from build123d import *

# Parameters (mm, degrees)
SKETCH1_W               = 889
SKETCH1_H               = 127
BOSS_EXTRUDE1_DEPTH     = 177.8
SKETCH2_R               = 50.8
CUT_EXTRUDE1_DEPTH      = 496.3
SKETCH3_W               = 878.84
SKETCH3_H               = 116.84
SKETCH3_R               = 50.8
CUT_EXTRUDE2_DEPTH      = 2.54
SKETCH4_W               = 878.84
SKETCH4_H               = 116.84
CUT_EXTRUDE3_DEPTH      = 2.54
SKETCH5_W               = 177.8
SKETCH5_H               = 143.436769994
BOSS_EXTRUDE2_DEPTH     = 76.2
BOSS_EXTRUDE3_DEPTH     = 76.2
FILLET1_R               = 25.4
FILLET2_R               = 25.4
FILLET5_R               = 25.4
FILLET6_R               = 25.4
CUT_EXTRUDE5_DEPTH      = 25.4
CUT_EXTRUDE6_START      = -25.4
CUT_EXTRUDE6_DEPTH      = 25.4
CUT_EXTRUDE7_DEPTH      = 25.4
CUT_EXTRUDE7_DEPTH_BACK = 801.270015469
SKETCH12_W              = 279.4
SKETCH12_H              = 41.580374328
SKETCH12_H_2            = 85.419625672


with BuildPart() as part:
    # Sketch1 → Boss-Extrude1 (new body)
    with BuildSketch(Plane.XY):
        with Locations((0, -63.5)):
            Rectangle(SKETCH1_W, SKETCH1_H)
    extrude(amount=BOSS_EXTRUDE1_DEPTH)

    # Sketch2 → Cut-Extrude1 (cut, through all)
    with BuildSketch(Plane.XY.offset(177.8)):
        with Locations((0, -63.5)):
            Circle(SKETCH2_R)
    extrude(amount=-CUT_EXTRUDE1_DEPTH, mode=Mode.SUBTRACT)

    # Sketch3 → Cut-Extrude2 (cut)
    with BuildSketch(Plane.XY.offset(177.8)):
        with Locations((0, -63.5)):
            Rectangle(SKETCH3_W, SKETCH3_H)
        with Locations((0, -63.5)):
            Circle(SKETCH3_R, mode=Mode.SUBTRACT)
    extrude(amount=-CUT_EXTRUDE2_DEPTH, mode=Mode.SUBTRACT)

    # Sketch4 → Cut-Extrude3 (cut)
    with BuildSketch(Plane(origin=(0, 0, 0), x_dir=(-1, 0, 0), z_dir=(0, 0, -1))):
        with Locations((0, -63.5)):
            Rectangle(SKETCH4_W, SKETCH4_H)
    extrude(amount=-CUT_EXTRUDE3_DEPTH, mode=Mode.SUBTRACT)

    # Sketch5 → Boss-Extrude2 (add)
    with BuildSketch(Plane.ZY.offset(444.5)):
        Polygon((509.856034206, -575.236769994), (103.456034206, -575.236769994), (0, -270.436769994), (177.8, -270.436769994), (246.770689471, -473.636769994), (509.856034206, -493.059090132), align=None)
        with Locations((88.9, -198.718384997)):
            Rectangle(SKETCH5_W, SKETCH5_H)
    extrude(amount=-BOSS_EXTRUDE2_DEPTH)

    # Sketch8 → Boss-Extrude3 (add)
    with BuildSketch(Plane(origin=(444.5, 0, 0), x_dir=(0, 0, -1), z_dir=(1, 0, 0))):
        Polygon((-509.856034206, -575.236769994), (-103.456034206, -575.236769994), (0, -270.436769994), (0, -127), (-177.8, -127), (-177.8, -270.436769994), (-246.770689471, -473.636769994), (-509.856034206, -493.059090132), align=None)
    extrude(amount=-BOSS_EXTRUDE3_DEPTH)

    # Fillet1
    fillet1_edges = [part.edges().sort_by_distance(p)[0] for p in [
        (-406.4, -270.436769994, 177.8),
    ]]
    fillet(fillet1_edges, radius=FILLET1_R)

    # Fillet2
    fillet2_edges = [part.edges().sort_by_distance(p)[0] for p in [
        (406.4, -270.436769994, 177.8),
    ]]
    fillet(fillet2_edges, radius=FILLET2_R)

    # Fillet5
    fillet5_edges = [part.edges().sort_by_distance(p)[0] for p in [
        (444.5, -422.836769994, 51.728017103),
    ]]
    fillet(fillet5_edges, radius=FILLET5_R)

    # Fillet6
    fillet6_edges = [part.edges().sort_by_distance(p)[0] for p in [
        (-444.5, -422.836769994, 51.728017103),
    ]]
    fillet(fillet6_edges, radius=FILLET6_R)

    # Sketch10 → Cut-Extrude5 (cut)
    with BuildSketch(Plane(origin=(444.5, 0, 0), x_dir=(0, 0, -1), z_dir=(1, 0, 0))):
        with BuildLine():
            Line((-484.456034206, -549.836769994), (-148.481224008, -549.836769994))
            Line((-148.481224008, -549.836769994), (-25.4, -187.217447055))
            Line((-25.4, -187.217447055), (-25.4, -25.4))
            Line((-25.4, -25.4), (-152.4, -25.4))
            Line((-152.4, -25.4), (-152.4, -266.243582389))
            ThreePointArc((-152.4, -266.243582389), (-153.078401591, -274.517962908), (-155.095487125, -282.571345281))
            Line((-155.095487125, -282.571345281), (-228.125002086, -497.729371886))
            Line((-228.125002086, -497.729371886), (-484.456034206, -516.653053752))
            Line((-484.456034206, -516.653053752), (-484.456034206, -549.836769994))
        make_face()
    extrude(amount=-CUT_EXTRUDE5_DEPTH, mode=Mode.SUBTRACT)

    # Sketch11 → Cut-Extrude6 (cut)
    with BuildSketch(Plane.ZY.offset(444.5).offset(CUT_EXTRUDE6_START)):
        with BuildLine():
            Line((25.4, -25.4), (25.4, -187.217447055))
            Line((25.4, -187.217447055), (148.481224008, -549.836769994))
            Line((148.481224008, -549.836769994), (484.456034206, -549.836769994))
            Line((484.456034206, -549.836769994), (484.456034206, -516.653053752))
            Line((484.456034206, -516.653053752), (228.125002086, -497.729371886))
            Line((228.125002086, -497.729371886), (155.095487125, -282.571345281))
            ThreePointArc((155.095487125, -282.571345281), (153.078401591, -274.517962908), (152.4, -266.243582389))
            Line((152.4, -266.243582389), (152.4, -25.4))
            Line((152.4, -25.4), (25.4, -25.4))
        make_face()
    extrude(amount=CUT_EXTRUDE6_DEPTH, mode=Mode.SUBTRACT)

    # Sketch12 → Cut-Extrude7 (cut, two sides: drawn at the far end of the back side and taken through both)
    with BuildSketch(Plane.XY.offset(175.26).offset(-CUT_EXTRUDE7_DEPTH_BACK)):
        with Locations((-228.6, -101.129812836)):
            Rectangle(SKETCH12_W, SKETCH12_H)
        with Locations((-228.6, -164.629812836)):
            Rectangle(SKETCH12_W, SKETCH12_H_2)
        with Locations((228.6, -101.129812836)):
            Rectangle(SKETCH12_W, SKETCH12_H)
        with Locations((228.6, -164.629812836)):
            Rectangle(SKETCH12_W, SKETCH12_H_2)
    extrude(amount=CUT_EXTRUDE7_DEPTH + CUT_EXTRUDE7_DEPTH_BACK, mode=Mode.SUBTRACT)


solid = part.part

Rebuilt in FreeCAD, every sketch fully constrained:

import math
import FreeCAD as App
import Part
import Sketcher
Q = App.Units.Quantity


def edges_at(feature, points):
    """Names of the edges that pass closest to the given points."""
    edges = feature.Shape.Edges
    near = lambda p: min(range(len(edges)), key=lambda i: edges[i].distToShape(Part.Vertex(*p))[0])
    return sorted({f"Edge{near(p) + 1}" for p in points})


def add_polygon(sketch, points):
    """Adds a closed chain of lines whose ends are joined by coincident constraints."""
    first, n = sketch.GeometryCount, len(points)
    for a, b in zip(points, points[1:] + points[:1]):
        sketch.addGeometry(Part.LineSegment(App.Vector(*a, 0), App.Vector(*b, 0)), False)
    for i in range(n):
        sketch.addConstraint(Sketcher.Constraint("Coincident", first + i, 2, first + (i + 1) % n, 1))

doc = App.newDocument("Part")
params = doc.addObject("Spreadsheet::Sheet", "Params")
for row, (alias, value) in enumerate([
    ("sketch1_width", "35 in"),
    ("sketch1_height", "5 in"),
    ("pad1_length", "7 in"),
    ("sketch2_diameter", "4 in"),
    ("sketch3_diameter", "4 in"),
    ("sketch3_width", "34.6 in"),
    ("sketch3_height", "4.6 in"),
    ("pocket2_length", "0.1 in"),
    ("sketch4_width", "34.6 in"),
    ("sketch4_height", "4.6 in"),
    ("pocket3_length", "0.1 in"),
    ("sketch5_height", "16 in"),
    ("sketch5_height2", "7 in"),
    ("pad2_length", "3 in"),
    ("sketch6_height", "16 in"),
    ("sketch6_height2", "7 in"),
    ("pad3_length", "3 in"),
    ("fillet_radius", "1 in"),
    ("fillet2_radius", "1 in"),
    ("fillet3_radius", "1 in"),
    ("fillet4_radius", "1 in"),
    ("sketch7_radius", "2 in"),
    ("sketch7_height", "5 in"),
    ("pocket4_length", "1 in"),
    ("sketch8_radius", "2 in"),
    ("sketch8_height", "5 in"),
    ("pocket5_length", "1 in"),
    ("sketch9_width", "11 in"),
    ("sketch9_height", "5 in"),
], start=1):
    params.set(f"A{row}", alias)
    params.set(f"B{row}", "=" + value)
    params.setAlias(f"B{row}", alias)

body = doc.addObject("PartDesign::Body", "Body")

# Sketch on XY plane
sketch1 = body.newObject("Sketcher::SketchObject", "Sketch")
sketch1.AttachmentSupport = (doc.getObject("XY_Plane"), [""])
sketch1.MapMode = "FlatFace"
add_polygon(sketch1, [(-444.5, 0), (-444.5, -127), (444.5, -127), (444.5, 0)])  # lines 0-3
sketch1.addConstraint([
    Sketcher.Constraint("Vertical", 0),
    Sketcher.Constraint("Horizontal", 1),
    Sketcher.Constraint("Vertical", 2),
    Sketcher.Constraint("Horizontal", 3),
    Sketcher.Constraint("Symmetric", 2, 2, 3, 2, -1, 1),
    Sketcher.Constraint("DistanceX", 1, 1, 1, 2, Q("35 in")),
    Sketcher.Constraint("DistanceY", 0, 2, 0, 1, Q("5 in")),
])
sketch1.setExpression("Constraints[9]", "Params.sketch1_width")
sketch1.setExpression("Constraints[10]", "Params.sketch1_height")
pad1 = body.newObject("PartDesign::Pad", "Pad")
pad1.Profile = sketch1
pad1.setExpression("Length", "Params.pad1_length")

# Sketch on XY plane
sketch2 = body.newObject("Sketcher::SketchObject", "Sketch001")
sketch2.AttachmentSupport = (doc.getObject("XY_Plane"), [""])
sketch2.MapMode = "FlatFace"
sketch2.AttachmentOffset = App.Placement(App.Vector(0, 0, 7 * 25.4), App.Rotation())
sketch2.addGeometry(Part.Circle(App.Vector(0, -63.5, 0), App.Vector(0, 0, 1), 50.8), False)
sketch2.addConstraint([
    Sketcher.Constraint("PointOnObject", 0, 3, -2),
    Sketcher.Constraint("Diameter", 0, Q("4 in")),
    Sketcher.Constraint("DistanceY", 0, 3, -1, 1, Q("2.5 in")),
])
sketch2.setExpression("Constraints[1]", "Params.sketch2_diameter")
pocket1 = body.newObject("PartDesign::Pocket", "Pocket")
pocket1.Profile = sketch2
pocket1.Type = "ThroughAll"

# Sketch on XY plane
sketch3 = body.newObject("Sketcher::SketchObject", "Sketch002")
sketch3.AttachmentSupport = (doc.getObject("XY_Plane"), [""])
sketch3.MapMode = "FlatFace"
sketch3.AttachmentOffset = App.Placement(App.Vector(0, 0, 7 * 25.4), App.Rotation())
add_polygon(sketch3, [(-439.42, -5.08), (-439.42, -121.92), (439.42, -121.92), (439.42, -5.08)])  # lines 0-3
sketch3.addGeometry(Part.Circle(App.Vector(0, -63.5, 0), App.Vector(0, 0, 1), 50.8), False)  # 4
sketch3.addConstraint([
    Sketcher.Constraint("Vertical", 0),
    Sketcher.Constraint("Horizontal", 1),
    Sketcher.Constraint("Vertical", 2),
    Sketcher.Constraint("Horizontal", 3),
    Sketcher.Constraint("PointOnObject", 4, 3, -2),
    Sketcher.Constraint("Diameter", 4, Q("4 in")),
    Sketcher.Constraint("DistanceX", 1, 1, 1, 2, Q("34.6 in")),
    Sketcher.Constraint("DistanceY", 0, 2, 0, 1, Q("4.6 in")),
    Sketcher.Constraint("DistanceY", 4, 3, -1, 1, Q("2.5 in")),
    Sketcher.Constraint("DistanceX", 0, 2, -1, 1, Q("17.3 in")),
    Sketcher.Constraint("DistanceY", 0, 2, -1, 1, Q("4.8 in")),
])
sketch3.setExpression("Constraints[9]", "Params.sketch3_diameter")
sketch3.setExpression("Constraints[10]", "Params.sketch3_width")
sketch3.setExpression("Constraints[11]", "Params.sketch3_height")
pocket2 = body.newObject("PartDesign::Pocket", "Pocket001")
pocket2.Profile = sketch3
pocket2.setExpression("Length", "Params.pocket2_length")

# Sketch on XY plane
sketch4 = body.newObject("Sketcher::SketchObject", "Sketch003")
sketch4.AttachmentSupport = (doc.getObject("XY_Plane"), [""])
sketch4.MapMode = "FlatFace"
add_polygon(sketch4, [(439.42, -5.08), (439.42, -121.92), (-439.42, -121.92), (-439.42, -5.08)])  # lines 0-3
sketch4.addConstraint([
    Sketcher.Constraint("Vertical", 0),
    Sketcher.Constraint("Horizontal", 1),
    Sketcher.Constraint("Vertical", 2),
    Sketcher.Constraint("Horizontal", 3),
    Sketcher.Constraint("DistanceX", 1, 2, 1, 1, Q("34.6 in")),
    Sketcher.Constraint("DistanceY", 0, 2, 0, 1, Q("4.6 in")),
    Sketcher.Constraint("DistanceX", -1, 1, 0, 2, Q("17.3 in")),
    Sketcher.Constraint("DistanceY", 0, 2, -1, 1, Q("4.8 in")),
])
sketch4.setExpression("Constraints[8]", "Params.sketch4_width")
sketch4.setExpression("Constraints[9]", "Params.sketch4_height")
pocket3 = body.newObject("PartDesign::Pocket", "Pocket002")
pocket3.Profile = sketch4
pocket3.setExpression("Length", "Params.pocket3_length")
pocket3.Reversed = True

# Sketch on YZ plane
sketch5 = body.newObject("Sketcher::SketchObject", "Sketch004")
sketch5.AttachmentSupport = (doc.getObject("YZ_Plane"), [""])
sketch5.MapMode = "FlatFace"
sketch5.AttachmentOffset = App.Placement(App.Vector(0, 0, -17.5 * 25.4), App.Rotation())
add_polygon(sketch5, [(-575.23677, 103.456034), (-575.23677, 509.856034), (-493.05909, 509.856034), (-473.63677, 246.770689), (-270.43677, 177.8), (-127, 177.8), (-127, 0), (-270.43677, 0)])  # lines 0-7
sketch5.addConstraint([
    Sketcher.Constraint("Vertical", 0),
    Sketcher.Constraint("Horizontal", 1),
    Sketcher.Constraint("Horizontal", 4),
    Sketcher.Constraint("Vertical", 5),
    Sketcher.Constraint("Horizontal", 6),
    Sketcher.Constraint("PointOnObject", 5, 2, -1),
    Sketcher.Constraint("Parallel", 3, 7),
    Sketcher.Constraint("Vertical", 3, 2, 6, 2),
    Sketcher.Constraint("DistanceY", 0, 1, 0, 2, Q("16 in")),
    Sketcher.Constraint("DistanceY", 5, 2, 5, 1, Q("7 in")),
    Sketcher.Constraint("DistanceX", 4, 2, -1, 1, Q("5 in")),
    Sketcher.Constraint("DistanceX", 0, 2, 2, 2, Q("4 in")),
    Sketcher.Constraint("DistanceX", 2, 2, 3, 2, Q("8 in")),
    Sketcher.Constraint("Distance", 2, 263.801299),
    Sketcher.Constraint("DistanceX", 1, 1, 1, 2, 82.17768),
    Sketcher.Constraint("DistanceX", 4, 1, 4, 2, 143.43677),
])
sketch5.setExpression("Constraints[16]", "Params.sketch5_height")
sketch5.setExpression("Constraints[17]", "Params.sketch5_height2")
pad2 = body.newObject("PartDesign::Pad", "Pad001")
pad2.Profile = sketch5
pad2.setExpression("Length", "Params.pad2_length")

# Sketch on YZ plane
sketch6 = body.newObject("Sketcher::SketchObject", "Sketch005")
sketch6.AttachmentSupport = (doc.getObject("YZ_Plane"), [""])
sketch6.MapMode = "FlatFace"
sketch6.AttachmentOffset = App.Placement(App.Vector(0, 0, 17.5 * 25.4), App.Rotation())
add_polygon(sketch6, [(-575.23677, 509.856034), (-575.23677, 103.456034), (-270.43677, 0), (-127, 0), (-127, 177.8), (-270.43677, 177.8), (-473.63677, 246.770689), (-493.05909, 509.856034)])  # lines 0-7
sketch6.addConstraint([
    Sketcher.Constraint("Vertical", 0),
    Sketcher.Constraint("Horizontal", 2),
    Sketcher.Constraint("Vertical", 3),
    Sketcher.Constraint("Horizontal", 4),
    Sketcher.Constraint("Horizontal", 7),
    Sketcher.Constraint("PointOnObject", 1, 2, -1),
    Sketcher.Constraint("Parallel", 1, 5),
    Sketcher.Constraint("Vertical", 1, 2, 4, 2),
    Sketcher.Constraint("DistanceY", 0, 2, 0, 1, Q("16 in")),
    Sketcher.Constraint("DistanceY", 3, 1, 3, 2, Q("7 in")),
    Sketcher.Constraint("DistanceX", 2, 2, -1, 1, Q("5 in")),
    Sketcher.Constraint("DistanceX", 0, 2, 1, 2, Q("12 in")),
    Sketcher.Constraint("DistanceX", 0, 2, 5, 2, Q("4 in")),
    Sketcher.Constraint("Distance", 6, 263.801299),
    Sketcher.Constraint("DistanceX", 2, 1, 2, 2, 143.43677),
    Sketcher.Constraint("DistanceX", 7, 2, 7, 1, 82.17768),
])
sketch6.setExpression("Constraints[16]", "Params.sketch6_height")
sketch6.setExpression("Constraints[17]", "Params.sketch6_height2")
pad3 = body.newObject("PartDesign::Pad", "Pad002")
pad3.Profile = sketch6
pad3.setExpression("Length", "Params.pad3_length")
pad3.Reversed = True
doc.recompute()

fillet = body.newObject("PartDesign::Fillet", "Fillet")
fillet.Base = (pad3, edges_at(pad3, [(-406.4, -270.437, 177.8)]))
fillet.setExpression("Radius", "Params.fillet_radius")
doc.recompute()

fillet2 = body.newObject("PartDesign::Fillet", "Fillet001")
fillet2.Base = (fillet, edges_at(fillet, [(406.4, -270.437, 177.8)]))
fillet2.setExpression("Radius", "Params.fillet2_radius")
doc.recompute()

fillet3 = body.newObject("PartDesign::Fillet", "Fillet002")
fillet3.Base = (fillet2, edges_at(fillet2, [(444.5, -422.837, 51.728)]))
fillet3.setExpression("Radius", "Params.fillet3_radius")
doc.recompute()

fillet4 = body.newObject("PartDesign::Fillet", "Fillet003")
fillet4.Base = (fillet3, edges_at(fillet3, [(-444.5, -422.837, 51.728)]))
fillet4.setExpression("Radius", "Params.fillet4_radius")

# Sketch on YZ plane
sketch7 = body.newObject("Sketcher::SketchObject", "Sketch006")
sketch7.AttachmentSupport = (doc.getObject("YZ_Plane"), [""])
sketch7.MapMode = "FlatFace"
sketch7.AttachmentOffset = App.Placement(App.Vector(0, 0, 17.5 * 25.4), App.Rotation())
sketch7.addGeometry([
    Part.LineSegment(App.Vector(-549.83677, 484.456034, 0), App.Vector(-549.83677, 148.481224, 0)),  # 0
    Part.LineSegment(App.Vector(-549.83677, 148.481224, 0), App.Vector(-187.217447, 25.4, 0)),  # 1
    Part.LineSegment(App.Vector(-187.217447, 25.4, 0), App.Vector(-25.4, 25.4, 0)),  # 2
    Part.LineSegment(App.Vector(-25.4, 25.4, 0), App.Vector(-25.4, 152.4, 0)),  # 3
    Part.LineSegment(App.Vector(-25.4, 152.4, 0), App.Vector(-266.243582, 152.4, 0)),  # 4
    Part.ArcOfCircle(Part.Circle(App.Vector(-266.243582, 203.2, 0), App.Vector(0, 0, 1), 50.8), math.radians(-108.748378), math.radians(-90)),  # 5
    Part.LineSegment(App.Vector(-282.571345, 155.095487, 0), App.Vector(-497.729372, 228.125002, 0)),  # 6
    Part.LineSegment(App.Vector(-497.729372, 228.125002, 0), App.Vector(-516.653054, 484.456034, 0)),  # 7
    Part.LineSegment(App.Vector(-516.653054, 484.456034, 0), App.Vector(-549.83677, 484.456034, 0)),  # 8
], False)
sketch7.addConstraint([
    Sketcher.Constraint("Coincident", 0, 2, 1, 1),
    Sketcher.Constraint("Coincident", 1, 2, 2, 1),
    Sketcher.Constraint("Coincident", 2, 2, 3, 1),
    Sketcher.Constraint("Coincident", 3, 2, 4, 1),
    Sketcher.Constraint("Tangent", 4, 2, 5, 2),
    Sketcher.Constraint("Tangent", 5, 1, 6, 1),
    Sketcher.Constraint("Coincident", 6, 2, 7, 1),
    Sketcher.Constraint("Coincident", 7, 2, 8, 1),
    Sketcher.Constraint("Coincident", 8, 2, 0, 1),
    Sketcher.Constraint("Vertical", 0),
    Sketcher.Constraint("Horizontal", 2),
    Sketcher.Constraint("Vertical", 3),
    Sketcher.Constraint("Horizontal", 4),
    Sketcher.Constraint("Horizontal", 8),
    Sketcher.Constraint("Parallel", 1, 6),
    Sketcher.Constraint("Radius", 5, Q("2 in")),
    Sketcher.Constraint("DistanceY", 3, 1, 3, 2, Q("5 in")),
    Sketcher.Constraint("DistanceY", -1, 1, 5, 3, Q("8 in")),
    Sketcher.Constraint("DistanceX", 2, 2, -1, 1, Q("1 in")),
    Sketcher.Constraint("DistanceY", 0, 2, 0, 1, 335.97481),
    Sketcher.Constraint("DistanceX", 5, 1, 1, 2, 95.353898),
    Sketcher.Constraint("DistanceX", 0, 2, 6, 2, 52.107398),
    Sketcher.Constraint("DistanceX", 2, 1, 2, 2, 161.817447),
    Sketcher.Constraint("DistanceX", 4, 2, 4, 1, 240.843582),
    Sketcher.Constraint("DistanceX", 8, 2, 8, 1, 33.183716),
    Sketcher.Constraint("DistanceX", 0, 2, -1, 1, 549.83677),
])
sketch7.setExpression("Constraints[15]", "Params.sketch7_radius")
sketch7.setExpression("Constraints[16]", "Params.sketch7_height")
pocket4 = body.newObject("PartDesign::Pocket", "Pocket003")
pocket4.Profile = sketch7
pocket4.setExpression("Length", "Params.pocket4_length")

# Sketch on YZ plane
sketch8 = body.newObject("Sketcher::SketchObject", "Sketch007")
sketch8.AttachmentSupport = (doc.getObject("YZ_Plane"), [""])
sketch8.MapMode = "FlatFace"
sketch8.AttachmentOffset = App.Placement(App.Vector(0, 0, -16.5 * 25.4), App.Rotation())
sketch8.addGeometry([
    Part.LineSegment(App.Vector(-25.4, 25.4, 0), App.Vector(-187.217447, 25.4, 0)),  # 0
    Part.LineSegment(App.Vector(-187.217447, 25.4, 0), App.Vector(-549.83677, 148.481224, 0)),  # 1
    Part.LineSegment(App.Vector(-549.83677, 148.481224, 0), App.Vector(-549.83677, 484.456034, 0)),  # 2
    Part.LineSegment(App.Vector(-549.83677, 484.456034, 0), App.Vector(-516.653054, 484.456034, 0)),  # 3
    Part.LineSegment(App.Vector(-516.653054, 484.456034, 0), App.Vector(-497.729372, 228.125002, 0)),  # 4
    Part.LineSegment(App.Vector(-497.729372, 228.125002, 0), App.Vector(-282.571345, 155.095487, 0)),  # 5
    Part.ArcOfCircle(Part.Circle(App.Vector(-266.243582, 203.2, 0), App.Vector(0, 0, 1), 50.8), math.radians(-108.748378), math.radians(-90)),  # 6
    Part.LineSegment(App.Vector(-266.243582, 152.4, 0), App.Vector(-25.4, 152.4, 0)),  # 7
    Part.LineSegment(App.Vector(-25.4, 152.4, 0), App.Vector(-25.4, 25.4, 0)),  # 8
], False)
sketch8.addConstraint([
    Sketcher.Constraint("Coincident", 0, 2, 1, 1),
    Sketcher.Constraint("Coincident", 1, 2, 2, 1),
    Sketcher.Constraint("Coincident", 2, 2, 3, 1),
    Sketcher.Constraint("Coincident", 3, 2, 4, 1),
    Sketcher.Constraint("Coincident", 4, 2, 5, 1),
    Sketcher.Constraint("Tangent", 5, 2, 6, 1),
    Sketcher.Constraint("Tangent", 6, 2, 7, 1),
    Sketcher.Constraint("Coincident", 7, 2, 8, 1),
    Sketcher.Constraint("Coincident", 8, 2, 0, 1),
    Sketcher.Constraint("Horizontal", 0),
    Sketcher.Constraint("Vertical", 2),
    Sketcher.Constraint("Horizontal", 3),
    Sketcher.Constraint("Horizontal", 7),
    Sketcher.Constraint("Vertical", 8),
    Sketcher.Constraint("Parallel", 1, 5),
    Sketcher.Constraint("Radius", 6, Q("2 in")),
    Sketcher.Constraint("DistanceY", 8, 2, 8, 1, Q("5 in")),
    Sketcher.Constraint("DistanceY", -1, 1, 6, 3, Q("8 in")),
    Sketcher.Constraint("DistanceX", 7, 2, -1, 1, Q("1 in")),
    Sketcher.Constraint("DistanceY", 2, 1, 2, 2, 335.97481),
    Sketcher.Constraint("DistanceX", 1, 2, 4, 2, 52.107398),
    Sketcher.Constraint("DistanceX", 5, 2, 0, 2, 95.353898),
    Sketcher.Constraint("DistanceX", 0, 2, 0, 1, 161.817447),
    Sketcher.Constraint("DistanceX", 3, 1, 3, 2, 33.183716),
    Sketcher.Constraint("DistanceX", 7, 1, 7, 2, 240.843582),
    Sketcher.Constraint("DistanceX", 1, 2, -1, 1, 549.83677),
])
sketch8.setExpression("Constraints[15]", "Params.sketch8_radius")
sketch8.setExpression("Constraints[16]", "Params.sketch8_height")
pocket5 = body.newObject("PartDesign::Pocket", "Pocket004")
pocket5.Profile = sketch8
pocket5.setExpression("Length", "Params.pocket5_length")

# Sketch on XY plane
sketch9 = body.newObject("Sketcher::SketchObject", "Sketch008")
sketch9.AttachmentSupport = (doc.getObject("XY_Plane"), [""])
sketch9.MapMode = "FlatFace"
sketch9.AttachmentOffset = App.Placement(App.Vector(0, 0, 6.9 * 25.4), App.Rotation())
add_polygon(sketch9, [(-368.3, -80.339626), (-368.3, -207.339626), (-88.9, -207.339626), (-88.9, -80.339626)])  # lines 0-3
add_polygon(sketch9, [(88.9, -80.339626), (88.9, -207.339626), (368.3, -207.339626), (368.3, -80.339626)])  # lines 4-7
sketch9.addConstraint([
    Sketcher.Constraint("Vertical", 0),
    Sketcher.Constraint("Horizontal", 1),
    Sketcher.Constraint("Vertical", 2),
    Sketcher.Constraint("Horizontal", 3),
    Sketcher.Constraint("Vertical", 4),
    Sketcher.Constraint("Horizontal", 5),
    Sketcher.Constraint("Vertical", 6),
    Sketcher.Constraint("Horizontal", 7),
    Sketcher.Constraint("Symmetric", 1, 2, 4, 2, -2),
    Sketcher.Constraint("Symmetric", 3, 2, 6, 2, -2),
    Sketcher.Constraint("DistanceX", 1, 1, 1, 2, Q("11 in")),
    Sketcher.Constraint("DistanceY", 0, 2, 0, 1, Q("5 in")),
    Sketcher.Constraint("DistanceX", 1, 2, 4, 2, Q("7 in")),
    Sketcher.Constraint("DistanceY", 0, 2, -1, 1, 207.339626),
])
sketch9.setExpression("Constraints[18]", "Params.sketch9_width")
sketch9.setExpression("Constraints[19]", "Params.sketch9_height")
pocket6 = body.newObject("PartDesign::Pocket", "Pocket005")
pocket6.Profile = sketch9
pocket6.Type = "ThroughAll"
pocket6.Midplane = True

doc.recompute()
